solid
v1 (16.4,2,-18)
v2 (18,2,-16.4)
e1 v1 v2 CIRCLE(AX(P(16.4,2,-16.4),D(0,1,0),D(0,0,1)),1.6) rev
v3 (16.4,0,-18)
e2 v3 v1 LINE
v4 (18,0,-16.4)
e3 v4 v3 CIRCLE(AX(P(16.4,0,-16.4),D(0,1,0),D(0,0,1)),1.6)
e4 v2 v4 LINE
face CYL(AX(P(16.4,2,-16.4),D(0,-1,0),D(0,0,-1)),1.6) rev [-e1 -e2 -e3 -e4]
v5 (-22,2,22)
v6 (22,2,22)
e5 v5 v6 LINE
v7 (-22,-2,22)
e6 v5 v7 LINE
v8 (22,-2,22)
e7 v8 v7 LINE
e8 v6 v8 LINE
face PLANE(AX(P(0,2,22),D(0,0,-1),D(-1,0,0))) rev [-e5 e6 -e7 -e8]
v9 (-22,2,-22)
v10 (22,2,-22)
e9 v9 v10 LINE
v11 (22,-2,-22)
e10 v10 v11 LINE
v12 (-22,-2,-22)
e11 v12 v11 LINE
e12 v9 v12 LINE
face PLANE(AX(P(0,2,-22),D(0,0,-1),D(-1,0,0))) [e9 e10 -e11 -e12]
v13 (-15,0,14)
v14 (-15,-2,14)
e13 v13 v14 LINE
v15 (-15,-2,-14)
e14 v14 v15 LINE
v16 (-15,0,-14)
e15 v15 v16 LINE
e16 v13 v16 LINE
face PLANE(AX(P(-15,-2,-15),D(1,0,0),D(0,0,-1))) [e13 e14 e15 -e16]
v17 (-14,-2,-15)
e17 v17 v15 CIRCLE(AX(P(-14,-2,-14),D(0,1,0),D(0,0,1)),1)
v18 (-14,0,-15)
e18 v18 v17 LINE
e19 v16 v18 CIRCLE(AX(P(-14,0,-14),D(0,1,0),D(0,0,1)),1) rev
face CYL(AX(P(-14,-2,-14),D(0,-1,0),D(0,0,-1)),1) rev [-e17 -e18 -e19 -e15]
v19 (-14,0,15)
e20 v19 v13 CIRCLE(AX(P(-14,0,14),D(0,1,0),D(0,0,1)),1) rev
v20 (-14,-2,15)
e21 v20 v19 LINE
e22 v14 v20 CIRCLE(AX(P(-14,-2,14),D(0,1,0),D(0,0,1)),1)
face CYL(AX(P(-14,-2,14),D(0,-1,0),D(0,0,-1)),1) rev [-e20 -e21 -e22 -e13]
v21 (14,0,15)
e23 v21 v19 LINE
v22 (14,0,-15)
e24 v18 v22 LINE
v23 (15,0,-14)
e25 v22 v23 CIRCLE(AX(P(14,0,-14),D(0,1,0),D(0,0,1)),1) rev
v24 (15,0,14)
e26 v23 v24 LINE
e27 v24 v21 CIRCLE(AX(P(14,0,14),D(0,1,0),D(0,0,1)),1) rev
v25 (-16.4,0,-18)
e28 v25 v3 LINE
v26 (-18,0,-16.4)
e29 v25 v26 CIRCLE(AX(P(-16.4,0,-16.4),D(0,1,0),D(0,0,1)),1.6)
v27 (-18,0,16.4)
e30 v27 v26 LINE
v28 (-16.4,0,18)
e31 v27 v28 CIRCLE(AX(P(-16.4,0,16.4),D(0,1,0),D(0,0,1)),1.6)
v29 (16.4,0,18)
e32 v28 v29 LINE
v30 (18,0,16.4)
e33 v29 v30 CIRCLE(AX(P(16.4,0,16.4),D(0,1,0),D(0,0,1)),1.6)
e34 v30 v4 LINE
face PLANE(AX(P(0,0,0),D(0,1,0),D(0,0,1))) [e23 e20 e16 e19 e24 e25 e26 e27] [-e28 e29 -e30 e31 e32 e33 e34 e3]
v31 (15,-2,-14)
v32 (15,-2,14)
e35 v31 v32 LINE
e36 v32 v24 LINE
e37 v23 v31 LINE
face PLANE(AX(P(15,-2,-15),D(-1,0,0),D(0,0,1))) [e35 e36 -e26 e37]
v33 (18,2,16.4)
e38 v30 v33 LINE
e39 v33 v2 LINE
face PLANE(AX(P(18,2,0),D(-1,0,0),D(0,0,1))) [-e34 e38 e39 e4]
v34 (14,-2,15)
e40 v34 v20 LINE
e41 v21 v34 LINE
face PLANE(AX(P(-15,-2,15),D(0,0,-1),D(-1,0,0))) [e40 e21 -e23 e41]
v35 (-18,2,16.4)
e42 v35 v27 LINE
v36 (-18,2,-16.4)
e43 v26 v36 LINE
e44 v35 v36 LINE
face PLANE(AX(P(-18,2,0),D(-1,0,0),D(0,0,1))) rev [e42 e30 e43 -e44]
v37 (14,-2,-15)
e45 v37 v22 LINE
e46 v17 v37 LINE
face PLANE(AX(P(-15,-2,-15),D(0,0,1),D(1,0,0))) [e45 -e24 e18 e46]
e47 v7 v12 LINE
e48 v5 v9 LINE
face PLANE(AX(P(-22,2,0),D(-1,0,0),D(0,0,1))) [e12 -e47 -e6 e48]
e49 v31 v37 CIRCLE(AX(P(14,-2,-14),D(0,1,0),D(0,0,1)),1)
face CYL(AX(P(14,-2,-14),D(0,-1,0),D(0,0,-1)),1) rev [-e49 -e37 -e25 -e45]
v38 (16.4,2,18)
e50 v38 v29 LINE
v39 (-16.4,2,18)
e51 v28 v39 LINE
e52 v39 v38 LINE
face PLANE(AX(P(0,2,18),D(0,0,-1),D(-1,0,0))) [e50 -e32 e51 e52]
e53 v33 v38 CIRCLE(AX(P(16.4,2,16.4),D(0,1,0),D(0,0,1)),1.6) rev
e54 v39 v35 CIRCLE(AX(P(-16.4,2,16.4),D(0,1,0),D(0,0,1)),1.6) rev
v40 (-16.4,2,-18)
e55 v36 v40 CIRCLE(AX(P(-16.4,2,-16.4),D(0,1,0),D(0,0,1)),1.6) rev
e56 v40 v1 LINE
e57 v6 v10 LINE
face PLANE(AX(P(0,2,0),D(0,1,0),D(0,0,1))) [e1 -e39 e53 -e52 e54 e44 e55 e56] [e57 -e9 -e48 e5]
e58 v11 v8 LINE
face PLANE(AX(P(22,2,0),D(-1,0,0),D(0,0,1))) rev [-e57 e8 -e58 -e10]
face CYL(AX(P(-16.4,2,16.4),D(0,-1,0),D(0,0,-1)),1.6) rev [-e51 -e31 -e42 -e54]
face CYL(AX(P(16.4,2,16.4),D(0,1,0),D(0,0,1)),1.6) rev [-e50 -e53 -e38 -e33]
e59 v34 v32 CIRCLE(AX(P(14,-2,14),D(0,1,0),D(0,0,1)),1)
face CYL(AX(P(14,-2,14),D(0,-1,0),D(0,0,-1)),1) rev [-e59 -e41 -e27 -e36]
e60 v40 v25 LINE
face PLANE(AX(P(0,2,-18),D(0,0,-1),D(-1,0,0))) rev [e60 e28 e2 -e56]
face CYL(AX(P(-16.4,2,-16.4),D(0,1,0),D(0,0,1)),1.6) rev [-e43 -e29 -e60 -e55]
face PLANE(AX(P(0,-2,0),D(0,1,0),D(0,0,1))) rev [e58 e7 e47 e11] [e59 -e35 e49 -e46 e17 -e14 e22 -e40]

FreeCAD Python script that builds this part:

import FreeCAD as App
import Part
import Sketcher
Q = App.Units.Quantity


def edges_at(feature, points):
    """Names of the edges that pass closest to the given points."""
    edges = feature.Shape.Edges
    near = lambda p: min(range(len(edges)), key=lambda i: edges[i].distToShape(Part.Vertex(*p))[0])
    return sorted({f"Edge{near(p) + 1}" for p in points})

doc = App.newDocument("Part")
body = doc.addObject("PartDesign::Body", "Body")

sketch1 = body.newObject("Sketcher::SketchObject", "Sketch")
sketch1.AttachmentSupport = (doc.getObject("XZ_Plane"), [""])
sketch1.MapMode = "FlatFace"
sketch1.addGeometry([
    Part.LineSegment(App.Vector(-22, -22, 0), App.Vector(-22, 22, 0)),
    Part.LineSegment(App.Vector(-22, 22, 0), App.Vector(22, 22, 0)),
    Part.LineSegment(App.Vector(22, 22, 0), App.Vector(22, -22, 0)),
    Part.LineSegment(App.Vector(22, -22, 0), App.Vector(-22, -22, 0)),
    Part.LineSegment(App.Vector(18, 18, 0), App.Vector(-18, 18, 0)),
    Part.LineSegment(App.Vector(-18, 18, 0), App.Vector(-18, -18, 0)),
    Part.LineSegment(App.Vector(-18, -18, 0), App.Vector(18, -18, 0)),
    Part.LineSegment(App.Vector(18, -18, 0), App.Vector(18, 18, 0)),
], False)
sketch1.addConstraint([
    Sketcher.Constraint("Coincident", 0, 2, 1, 1),
    Sketcher.Constraint("Coincident", 1, 2, 2, 1),
    Sketcher.Constraint("Coincident", 2, 2, 3, 1),
    Sketcher.Constraint("Coincident", 3, 2, 0, 1),
    Sketcher.Constraint("Coincident", 4, 2, 5, 1),
    Sketcher.Constraint("Coincident", 5, 2, 6, 1),
    Sketcher.Constraint("Coincident", 6, 2, 7, 1),
    Sketcher.Constraint("Coincident", 7, 2, 4, 1),
    Sketcher.Constraint("Vertical", 0),
    Sketcher.Constraint("Horizontal", 1),
    Sketcher.Constraint("Vertical", 2),
    Sketcher.Constraint("Horizontal", 3),
    Sketcher.Constraint("Horizontal", 4),
    Sketcher.Constraint("Vertical", 5),
    Sketcher.Constraint("Horizontal", 6),
    Sketcher.Constraint("Vertical", 7),
    Sketcher.Constraint("Symmetric", 0, 2, 2, 2, -1, 1),
    Sketcher.Constraint("Symmetric", 4, 2, 6, 2, -1, 1),
    Sketcher.Constraint("Equal", 3, 0),
    Sketcher.Constraint("Equal", 6, 5),
    Sketcher.Constraint("DistanceX", 1, 1, 1, 2, Q("44 mm")),
    Sketcher.Constraint("DistanceX", 4, 2, 4, 1, Q("36 mm")),
])
pad1 = body.newObject("PartDesign::Pad", "Pad")
pad1.Profile = sketch1
pad1.Length = 2
pad1.Reversed = True
doc.recompute()

fillet = body.newObject("PartDesign::Fillet", "Fillet")
fillet.Base = (pad1, edges_at(pad1, [
    (18, 1, -18),
    (-18, 1, -18),
    (-18, 1, 18),
    (18, 1, 18),
]))
fillet.Radius = 1.6

sketch2 = body.newObject("Sketcher::SketchObject", "Sketch001")
sketch2.AttachmentSupport = (doc.getObject("XZ_Plane"), [""])
sketch2.MapMode = "FlatFace"
sketch2.addGeometry([
    Part.LineSegment(App.Vector(-22, 22, 0), App.Vector(-22, -22, 0)),
    Part.LineSegment(App.Vector(-22, -22, 0), App.Vector(22, -22, 0)),
    Part.LineSegment(App.Vector(22, -22, 0), App.Vector(22, 22, 0)),
    Part.LineSegment(App.Vector(22, 22, 0), App.Vector(-22, 22, 0)),
    Part.LineSegment(App.Vector(15, -15, 0), App.Vector(-15, -15, 0)),
    Part.LineSegment(App.Vector(-15, -15, 0), App.Vector(-15, 15, 0)),
    Part.LineSegment(App.Vector(-15, 15, 0), App.Vector(15, 15, 0)),
    Part.LineSegment(App.Vector(15, 15, 0), App.Vector(15, -15, 0)),
], False)
sketch2.addConstraint([
    Sketcher.Constraint("Coincident", 0, 2, 1, 1),
    Sketcher.Constraint("Coincident", 1, 2, 2, 1),
    Sketcher.Constraint("Coincident", 2, 2, 3, 1),
    Sketcher.Constraint("Coincident", 3, 2, 0, 1),
    Sketcher.Constraint("Coincident", 4, 2, 5, 1),
    Sketcher.Constraint("Coincident", 5, 2, 6, 1),
    Sketcher.Constraint("Coincident", 6, 2, 7, 1),
    Sketcher.Constraint("Coincident", 7, 2, 4, 1),
    Sketcher.Constraint("Vertical", 0),
    Sketcher.Constraint("Horizontal", 1),
    Sketcher.Constraint("Vertical", 2),
    Sketcher.Constraint("Horizontal", 3),
    Sketcher.Constraint("Horizontal", 4),
    Sketcher.Constraint("Vertical", 5),
    Sketcher.Constraint("Horizontal", 6),
    Sketcher.Constraint("Vertical", 7),
    Sketcher.Constraint("Symmetric", 0, 2, 2, 2, -1, 1),
    Sketcher.Constraint("Symmetric", 4, 2, 6, 2, -1, 1),
    Sketcher.Constraint("Equal", 3, 0),
    Sketcher.Constraint("Equal", 6, 5),
    Sketcher.Constraint("DistanceX", 1, 1, 1, 2, Q("44 mm")),
    Sketcher.Constraint("DistanceX", 4, 2, 4, 1, Q("30 mm")),
])
pad2 = body.newObject("PartDesign::Pad", "Pad001")
pad2.Profile = sketch2
pad2.Length = 2
doc.recompute()

fillet2 = body.newObject("PartDesign::Fillet", "Fillet001")
fillet2.Base = (pad2, edges_at(pad2, [
    (15, -1, 15),
    (-15, -1, 15),
    (-15, -1, -15),
    (15, -1, -15),
]))
fillet2.Radius = 1

doc.recompute()
